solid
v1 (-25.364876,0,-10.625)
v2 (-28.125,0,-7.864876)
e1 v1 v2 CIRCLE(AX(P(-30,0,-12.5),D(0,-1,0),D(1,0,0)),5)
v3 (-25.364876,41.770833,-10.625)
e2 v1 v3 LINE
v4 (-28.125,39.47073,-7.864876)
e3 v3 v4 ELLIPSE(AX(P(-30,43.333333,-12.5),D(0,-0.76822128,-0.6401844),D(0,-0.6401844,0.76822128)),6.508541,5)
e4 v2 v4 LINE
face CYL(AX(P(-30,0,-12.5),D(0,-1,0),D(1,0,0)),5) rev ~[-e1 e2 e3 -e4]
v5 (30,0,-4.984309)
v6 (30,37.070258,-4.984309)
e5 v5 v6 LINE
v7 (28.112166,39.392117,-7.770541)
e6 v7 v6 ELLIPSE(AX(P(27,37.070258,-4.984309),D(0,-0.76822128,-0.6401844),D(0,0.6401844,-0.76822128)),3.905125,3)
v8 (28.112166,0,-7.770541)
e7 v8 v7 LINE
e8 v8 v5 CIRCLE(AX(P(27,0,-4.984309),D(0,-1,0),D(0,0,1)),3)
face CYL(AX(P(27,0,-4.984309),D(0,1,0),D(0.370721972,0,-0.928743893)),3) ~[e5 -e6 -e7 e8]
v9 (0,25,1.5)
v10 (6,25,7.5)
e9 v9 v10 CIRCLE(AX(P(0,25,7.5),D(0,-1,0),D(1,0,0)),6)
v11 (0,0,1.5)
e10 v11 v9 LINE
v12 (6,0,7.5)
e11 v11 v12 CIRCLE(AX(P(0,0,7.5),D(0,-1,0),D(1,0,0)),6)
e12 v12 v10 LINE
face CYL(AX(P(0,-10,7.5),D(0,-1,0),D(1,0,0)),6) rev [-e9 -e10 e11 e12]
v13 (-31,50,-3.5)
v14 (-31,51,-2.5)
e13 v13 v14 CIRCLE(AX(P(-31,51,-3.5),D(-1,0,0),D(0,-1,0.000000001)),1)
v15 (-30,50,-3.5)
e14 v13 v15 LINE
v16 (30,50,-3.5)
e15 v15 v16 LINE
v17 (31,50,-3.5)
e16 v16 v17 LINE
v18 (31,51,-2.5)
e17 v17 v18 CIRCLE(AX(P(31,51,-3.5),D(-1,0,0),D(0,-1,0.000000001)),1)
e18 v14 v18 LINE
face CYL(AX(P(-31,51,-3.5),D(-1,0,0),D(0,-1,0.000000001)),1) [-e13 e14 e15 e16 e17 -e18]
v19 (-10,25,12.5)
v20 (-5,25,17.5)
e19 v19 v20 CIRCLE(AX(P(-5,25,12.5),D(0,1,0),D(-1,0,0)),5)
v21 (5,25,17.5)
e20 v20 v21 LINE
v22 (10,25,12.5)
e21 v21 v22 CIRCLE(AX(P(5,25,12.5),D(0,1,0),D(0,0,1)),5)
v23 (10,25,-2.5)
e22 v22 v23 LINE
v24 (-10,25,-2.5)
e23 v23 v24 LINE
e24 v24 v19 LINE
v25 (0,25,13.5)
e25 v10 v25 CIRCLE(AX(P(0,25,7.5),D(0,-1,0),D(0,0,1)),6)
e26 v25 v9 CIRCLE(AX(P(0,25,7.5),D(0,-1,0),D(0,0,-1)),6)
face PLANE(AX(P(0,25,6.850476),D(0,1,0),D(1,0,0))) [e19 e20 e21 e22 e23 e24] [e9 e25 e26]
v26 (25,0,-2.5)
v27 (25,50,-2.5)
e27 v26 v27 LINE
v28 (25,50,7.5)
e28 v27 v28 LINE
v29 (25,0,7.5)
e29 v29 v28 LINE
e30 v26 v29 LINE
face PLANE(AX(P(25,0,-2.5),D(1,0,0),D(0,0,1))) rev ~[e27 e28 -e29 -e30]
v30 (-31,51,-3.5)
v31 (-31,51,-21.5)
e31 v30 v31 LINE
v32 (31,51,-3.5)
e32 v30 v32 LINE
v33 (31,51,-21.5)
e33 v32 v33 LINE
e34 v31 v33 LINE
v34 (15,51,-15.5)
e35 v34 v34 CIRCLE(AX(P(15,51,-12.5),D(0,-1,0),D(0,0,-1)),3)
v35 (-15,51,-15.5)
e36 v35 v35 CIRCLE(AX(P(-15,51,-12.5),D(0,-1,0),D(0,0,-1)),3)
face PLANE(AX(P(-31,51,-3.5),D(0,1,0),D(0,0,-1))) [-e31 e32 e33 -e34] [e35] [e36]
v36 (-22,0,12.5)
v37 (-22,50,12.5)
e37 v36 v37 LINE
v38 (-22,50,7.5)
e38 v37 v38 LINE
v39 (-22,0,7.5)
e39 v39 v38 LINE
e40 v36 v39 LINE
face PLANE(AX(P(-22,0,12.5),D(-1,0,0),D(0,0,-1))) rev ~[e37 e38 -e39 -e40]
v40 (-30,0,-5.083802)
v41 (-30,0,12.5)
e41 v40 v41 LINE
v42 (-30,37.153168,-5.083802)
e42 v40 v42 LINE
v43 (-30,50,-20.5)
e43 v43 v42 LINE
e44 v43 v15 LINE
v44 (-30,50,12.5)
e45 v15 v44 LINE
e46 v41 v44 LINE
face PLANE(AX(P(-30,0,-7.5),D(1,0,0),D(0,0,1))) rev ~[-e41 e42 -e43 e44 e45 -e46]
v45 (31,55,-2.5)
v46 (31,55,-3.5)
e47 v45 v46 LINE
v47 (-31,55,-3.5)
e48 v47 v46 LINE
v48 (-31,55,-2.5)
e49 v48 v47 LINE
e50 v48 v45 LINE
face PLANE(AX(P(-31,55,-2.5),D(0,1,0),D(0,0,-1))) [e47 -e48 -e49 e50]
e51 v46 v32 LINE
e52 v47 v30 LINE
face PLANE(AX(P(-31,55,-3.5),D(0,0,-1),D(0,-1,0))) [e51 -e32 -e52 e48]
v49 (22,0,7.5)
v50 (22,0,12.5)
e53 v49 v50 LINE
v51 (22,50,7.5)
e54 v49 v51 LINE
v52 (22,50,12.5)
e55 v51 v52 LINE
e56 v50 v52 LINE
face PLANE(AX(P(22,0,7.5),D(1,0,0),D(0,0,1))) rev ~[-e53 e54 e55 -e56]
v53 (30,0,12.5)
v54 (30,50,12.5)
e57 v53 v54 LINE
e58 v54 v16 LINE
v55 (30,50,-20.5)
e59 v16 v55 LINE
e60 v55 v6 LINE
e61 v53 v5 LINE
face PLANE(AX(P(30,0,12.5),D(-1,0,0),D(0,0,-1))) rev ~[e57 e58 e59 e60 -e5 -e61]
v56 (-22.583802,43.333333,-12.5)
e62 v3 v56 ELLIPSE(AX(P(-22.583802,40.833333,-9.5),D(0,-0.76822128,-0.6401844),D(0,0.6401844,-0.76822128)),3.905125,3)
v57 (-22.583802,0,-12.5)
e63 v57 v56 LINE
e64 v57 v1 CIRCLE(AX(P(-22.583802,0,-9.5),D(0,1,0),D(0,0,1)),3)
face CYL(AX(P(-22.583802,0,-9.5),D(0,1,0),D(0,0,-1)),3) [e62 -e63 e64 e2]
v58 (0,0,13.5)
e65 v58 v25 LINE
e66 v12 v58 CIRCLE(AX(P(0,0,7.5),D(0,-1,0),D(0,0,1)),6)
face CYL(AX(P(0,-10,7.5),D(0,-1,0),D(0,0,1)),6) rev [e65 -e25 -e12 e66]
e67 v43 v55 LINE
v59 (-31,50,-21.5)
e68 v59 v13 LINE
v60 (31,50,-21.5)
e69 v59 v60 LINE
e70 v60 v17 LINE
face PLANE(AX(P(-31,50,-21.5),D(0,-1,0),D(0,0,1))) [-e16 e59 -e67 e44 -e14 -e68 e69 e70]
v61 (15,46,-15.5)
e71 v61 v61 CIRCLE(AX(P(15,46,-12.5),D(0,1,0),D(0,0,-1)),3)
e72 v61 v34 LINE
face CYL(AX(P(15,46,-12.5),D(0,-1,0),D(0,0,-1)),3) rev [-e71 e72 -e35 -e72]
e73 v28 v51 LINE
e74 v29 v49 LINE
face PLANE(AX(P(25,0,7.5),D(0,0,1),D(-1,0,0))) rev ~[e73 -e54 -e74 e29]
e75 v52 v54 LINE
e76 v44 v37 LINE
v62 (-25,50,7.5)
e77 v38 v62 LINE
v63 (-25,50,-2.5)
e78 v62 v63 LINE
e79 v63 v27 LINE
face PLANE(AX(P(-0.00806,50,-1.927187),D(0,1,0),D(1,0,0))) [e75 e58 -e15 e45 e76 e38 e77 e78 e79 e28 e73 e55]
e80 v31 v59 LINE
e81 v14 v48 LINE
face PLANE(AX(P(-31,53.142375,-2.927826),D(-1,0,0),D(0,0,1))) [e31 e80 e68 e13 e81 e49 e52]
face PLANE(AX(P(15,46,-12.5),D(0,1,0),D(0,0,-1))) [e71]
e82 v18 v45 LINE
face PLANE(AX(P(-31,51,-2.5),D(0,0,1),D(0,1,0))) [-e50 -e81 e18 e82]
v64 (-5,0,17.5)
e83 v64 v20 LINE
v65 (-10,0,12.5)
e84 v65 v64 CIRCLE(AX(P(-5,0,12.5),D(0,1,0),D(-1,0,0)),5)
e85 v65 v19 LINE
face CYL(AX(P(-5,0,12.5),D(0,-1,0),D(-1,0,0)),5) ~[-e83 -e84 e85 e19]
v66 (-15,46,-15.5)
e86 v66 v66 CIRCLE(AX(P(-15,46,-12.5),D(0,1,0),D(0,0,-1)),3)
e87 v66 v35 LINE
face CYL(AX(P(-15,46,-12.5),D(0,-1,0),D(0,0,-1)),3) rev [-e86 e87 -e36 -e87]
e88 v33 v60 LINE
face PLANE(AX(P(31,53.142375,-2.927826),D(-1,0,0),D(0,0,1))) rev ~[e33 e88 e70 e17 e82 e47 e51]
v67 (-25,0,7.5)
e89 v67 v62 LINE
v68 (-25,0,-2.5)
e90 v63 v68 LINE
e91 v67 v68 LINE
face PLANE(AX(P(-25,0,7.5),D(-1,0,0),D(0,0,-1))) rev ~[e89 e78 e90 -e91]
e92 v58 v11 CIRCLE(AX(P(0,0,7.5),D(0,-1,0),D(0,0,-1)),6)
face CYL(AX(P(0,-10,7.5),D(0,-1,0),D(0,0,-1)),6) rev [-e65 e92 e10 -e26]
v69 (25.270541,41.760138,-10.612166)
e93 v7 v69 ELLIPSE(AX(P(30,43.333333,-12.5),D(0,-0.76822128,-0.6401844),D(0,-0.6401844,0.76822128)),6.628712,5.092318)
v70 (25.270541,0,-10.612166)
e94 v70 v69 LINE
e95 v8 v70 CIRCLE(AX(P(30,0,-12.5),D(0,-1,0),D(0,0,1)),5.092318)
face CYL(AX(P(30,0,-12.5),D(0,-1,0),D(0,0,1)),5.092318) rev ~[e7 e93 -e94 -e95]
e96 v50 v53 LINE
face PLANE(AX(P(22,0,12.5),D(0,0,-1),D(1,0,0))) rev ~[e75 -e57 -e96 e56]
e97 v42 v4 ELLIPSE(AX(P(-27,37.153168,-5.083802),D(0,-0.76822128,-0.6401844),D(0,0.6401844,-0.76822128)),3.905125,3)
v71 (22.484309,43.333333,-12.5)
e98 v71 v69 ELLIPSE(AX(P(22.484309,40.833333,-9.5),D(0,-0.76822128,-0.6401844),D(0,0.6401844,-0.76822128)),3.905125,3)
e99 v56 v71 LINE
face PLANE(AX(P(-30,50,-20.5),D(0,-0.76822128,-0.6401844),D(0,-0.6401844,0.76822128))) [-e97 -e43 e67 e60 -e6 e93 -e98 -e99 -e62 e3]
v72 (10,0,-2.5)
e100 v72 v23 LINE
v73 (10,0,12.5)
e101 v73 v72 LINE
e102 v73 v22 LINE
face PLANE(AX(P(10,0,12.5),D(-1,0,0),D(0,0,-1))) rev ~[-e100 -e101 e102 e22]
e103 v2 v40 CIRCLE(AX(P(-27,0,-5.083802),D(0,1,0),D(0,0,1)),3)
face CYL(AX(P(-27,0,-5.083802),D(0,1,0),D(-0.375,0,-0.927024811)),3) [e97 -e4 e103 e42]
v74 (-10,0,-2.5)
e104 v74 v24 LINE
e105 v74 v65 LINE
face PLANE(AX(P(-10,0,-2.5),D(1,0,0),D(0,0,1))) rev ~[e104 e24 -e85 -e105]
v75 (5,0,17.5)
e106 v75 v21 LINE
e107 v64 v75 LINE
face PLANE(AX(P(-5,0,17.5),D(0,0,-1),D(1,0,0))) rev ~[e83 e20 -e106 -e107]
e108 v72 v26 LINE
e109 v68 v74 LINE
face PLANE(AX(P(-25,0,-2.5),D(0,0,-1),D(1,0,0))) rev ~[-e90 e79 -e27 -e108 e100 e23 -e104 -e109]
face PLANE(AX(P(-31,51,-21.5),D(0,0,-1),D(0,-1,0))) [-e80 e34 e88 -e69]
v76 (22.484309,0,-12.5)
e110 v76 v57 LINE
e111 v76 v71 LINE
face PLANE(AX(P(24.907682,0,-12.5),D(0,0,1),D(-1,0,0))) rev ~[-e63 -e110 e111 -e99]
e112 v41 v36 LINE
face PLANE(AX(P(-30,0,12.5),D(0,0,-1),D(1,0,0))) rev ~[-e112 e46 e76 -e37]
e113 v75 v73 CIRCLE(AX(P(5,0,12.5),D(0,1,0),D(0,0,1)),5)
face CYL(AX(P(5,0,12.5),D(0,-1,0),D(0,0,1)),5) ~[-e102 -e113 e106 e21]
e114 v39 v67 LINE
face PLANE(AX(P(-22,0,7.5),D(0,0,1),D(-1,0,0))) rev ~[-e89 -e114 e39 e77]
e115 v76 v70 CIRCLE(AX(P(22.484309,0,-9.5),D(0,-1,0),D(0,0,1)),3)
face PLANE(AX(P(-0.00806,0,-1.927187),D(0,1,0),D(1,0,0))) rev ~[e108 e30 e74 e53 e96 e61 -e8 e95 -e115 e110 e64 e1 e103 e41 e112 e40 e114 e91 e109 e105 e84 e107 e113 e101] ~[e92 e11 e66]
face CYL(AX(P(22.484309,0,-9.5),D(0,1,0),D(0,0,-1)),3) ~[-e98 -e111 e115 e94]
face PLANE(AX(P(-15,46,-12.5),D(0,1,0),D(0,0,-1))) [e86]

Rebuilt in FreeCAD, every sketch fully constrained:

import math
import FreeCAD as App
import Part
import Sketcher
from FreeCAD import Vector


def edges_at(feature, points):
    """Names of the edges that pass closest to the given points."""
    edges = feature.Shape.Edges
    near = lambda p: min(range(len(edges)), key=lambda i: edges[i].distToShape(Part.Vertex(*p))[0])
    return sorted({f"Edge{near(p) + 1}" for p in points})

doc = App.newDocument("Part")
body = doc.addObject("PartDesign::Body", "Body")

# Sketch on XZ plane
sketch1 = body.newObject("Sketcher::SketchObject", "Sketch")
sketch1.AttachmentSupport = (doc.getObject("XZ_Plane"), [""])
sketch1.MapMode = "FlatFace"
sketch1.addGeometry([
    Part.LineSegment(Vector(25, 7.5, 0), Vector(22, 7.5, 0)),  # 0
    Part.LineSegment(Vector(22, 7.5, 0), Vector(22, 12.5, 0)),  # 1
    Part.LineSegment(Vector(22, 12.5, 0), Vector(30, 12.5, 0)),  # 2
    Part.LineSegment(Vector(30, 12.5, 0), Vector(30, -7.4, 0)),  # 3
    Part.ArcOfCircle(Part.Circle(Vector(30, -12.5, 0), Vector(0, 0, 1), 5.1), math.radians(90), math.radians(180)),  # 4
    Part.LineSegment(Vector(24.9, -12.5, 0), Vector(-25, -12.5, 0)),  # 5
    Part.ArcOfCircle(Part.Circle(Vector(-30, -12.5, 0), Vector(0, 0, 1), 5), math.radians(0), math.radians(90)),  # 6
    Part.LineSegment(Vector(-30, -7.5, 0), Vector(-30, 12.5, 0)),  # 7
    Part.LineSegment(Vector(-30, 12.5, 0), Vector(-22, 12.5, 0)),  # 8
    Part.LineSegment(Vector(-22, 12.5, 0), Vector(-22, 7.5, 0)),  # 9
    Part.LineSegment(Vector(-22, 7.5, 0), Vector(-25, 7.5, 0)),  # 10
    Part.LineSegment(Vector(-25, 7.5, 0), Vector(-25, -2.5, 0)),  # 11
    Part.LineSegment(Vector(-25, -2.5, 0), Vector(25, -2.5, 0)),  # 12
    Part.LineSegment(Vector(25, -2.5, 0), Vector(25, 7.5, 0)),  # 13
], False)
sketch1.addConstraint([
    Sketcher.Constraint("Coincident", 0, 2, 1, 1),
    Sketcher.Constraint("Coincident", 1, 2, 2, 1),
    Sketcher.Constraint("Coincident", 2, 2, 3, 1),
    Sketcher.Constraint("Coincident", 3, 2, 4, 1),
    Sketcher.Constraint("Coincident", 4, 2, 5, 1),
    Sketcher.Constraint("Coincident", 5, 2, 6, 1),
    Sketcher.Constraint("Coincident", 6, 2, 7, 1),
    Sketcher.Constraint("Coincident", 7, 2, 8, 1),
    Sketcher.Constraint("Coincident", 8, 2, 9, 1),
    Sketcher.Constraint("Coincident", 9, 2, 10, 1),
    Sketcher.Constraint("Coincident", 10, 2, 11, 1),
    Sketcher.Constraint("Coincident", 11, 2, 12, 1),
    Sketcher.Constraint("Coincident", 12, 2, 13, 1),
    Sketcher.Constraint("Coincident", 13, 2, 0, 1),
    Sketcher.Constraint("Horizontal", 0),
    Sketcher.Constraint("Vertical", 1),
    Sketcher.Constraint("Horizontal", 2),
    Sketcher.Constraint("Vertical", 3),
    Sketcher.Constraint("Horizontal", 5),
    Sketcher.Constraint("Vertical", 7),
    Sketcher.Constraint("Horizontal", 8),
    Sketcher.Constraint("Vertical", 9),
    Sketcher.Constraint("Horizontal", 10),
    Sketcher.Constraint("Vertical", 11),
    Sketcher.Constraint("Horizontal", 12),
    Sketcher.Constraint("Vertical", 13),
    Sketcher.Constraint("Symmetric", 4, 3, 6, 3, -2),
    Sketcher.Constraint("Symmetric", 2, 2, 7, 2, -2),
    Sketcher.Constraint("Symmetric", 0, 2, 9, 2, -2),
    Sketcher.Constraint("Horizontal", 6, 3, 4, 2),
    Sketcher.Constraint("Vertical", 4, 3, 2, 2),
    Sketcher.Constraint("Vertical", 5, 2, 10, 2),
    Sketcher.Constraint("Equal", 0, 10),
    Sketcher.Constraint("Radius", 6, 5.0),
    Sketcher.Constraint("DistanceX", 0, 2, 0, 1, 3.0),
    Sketcher.Constraint("DistanceX", 12, 1, 12, 2, 50.0),
    Sketcher.Constraint("DistanceY", 1, 1, 1, 2, 5.0),
    Sketcher.Constraint("DistanceY", 7, 1, 7, 2, 20.0),
    Sketcher.Constraint("DistanceY", 11, 2, 11, 1, 10.0),
    Sketcher.Constraint("DistanceY", 4, 3, -1, 1, 12.5),
    Sketcher.Constraint("Radius", 4, 5.092318),
])
pad1 = body.newObject("PartDesign::Pad", "Pad")
pad1.Profile = sketch1
pad1.Length = 50
pad1.Reversed = True
doc.recompute()

fillet = body.newObject("PartDesign::Fillet", "Fillet")
fillet.Base = (pad1, edges_at(pad1, [(-30, 25, -7.5), (-25, 25, -12.5)]))
fillet.Radius = 3
doc.recompute()

fillet2 = body.newObject("PartDesign::Fillet", "Fillet001")
fillet2.Base = (fillet, edges_at(fillet, [(24.908, 25, -12.5), (30, 25, -7.408)]))
fillet2.Radius = 3

# Sketch on YZ plane
sketch2 = body.newObject("Sketcher::SketchObject", "Sketch001")
sketch2.AttachmentSupport = (doc.getObject("YZ_Plane"), [""])
sketch2.MapMode = "FlatFace"
sketch2.AttachmentOffset = App.Placement(Vector(0, 0, -30), App.Rotation())
sketch2.addGeometry([
    Part.LineSegment(Vector(50, -2, 0), Vector(50, -20, 0)),
    Part.LineSegment(Vector(50, -20, 0), Vector(35, -2, 0)),
    Part.LineSegment(Vector(35, -2, 0), Vector(50, -2, 0)),
], False)
sketch2.addConstraint([
    Sketcher.Constraint("Coincident", 0, 2, 1, 1),
    Sketcher.Constraint("Coincident", 1, 2, 2, 1),
    Sketcher.Constraint("Coincident", 2, 2, 0, 1),
    Sketcher.Constraint("Vertical", 0),
    Sketcher.Constraint("Horizontal", 2),
    Sketcher.Constraint("DistanceX", 2, 1, 2, 2, 15.0),
    Sketcher.Constraint("DistanceY", 0, 2, 0, 1, 18.0),
    Sketcher.Constraint("DistanceX", -1, 1, 0, 2, 50.0),
    Sketcher.Constraint("DistanceY", 0, 2, -1, 1, 20.5),
])
pad2 = body.newObject("PartDesign::Pad", "Pad001")
pad2.Profile = sketch2
pad2.Length = 60

# Sketch on YZ plane
sketch3 = body.newObject("Sketcher::SketchObject", "Sketch002")
sketch3.AttachmentSupport = (doc.getObject("YZ_Plane"), [""])
sketch3.MapMode = "FlatFace"
sketch3.AttachmentOffset = App.Placement(Vector(0, 0, -31), App.Rotation())
sketch3.addGeometry([
    Part.LineSegment(Vector(51, -2.5, 0), Vector(55, -2.5, 0)),  # 0
    Part.LineSegment(Vector(55, -2.5, 0), Vector(55, -3.5, 0)),  # 1
    Part.LineSegment(Vector(55, -3.5, 0), Vector(51, -3.5, 0)),  # 2
    Part.LineSegment(Vector(51, -3.5, 0), Vector(51, -21.5, 0)),  # 3
    Part.LineSegment(Vector(51, -21.5, 0), Vector(50, -21.5, 0)),  # 4
    Part.LineSegment(Vector(50, -21.5, 0), Vector(50, -3.5, 0)),  # 5
    Part.ArcOfCircle(Part.Circle(Vector(51, -3.5, 0), Vector(0, 0, 1), 1), math.radians(90), math.radians(180)),  # 6
], False)
sketch3.addConstraint([
    Sketcher.Constraint("Coincident", 0, 2, 1, 1),
    Sketcher.Constraint("Coincident", 1, 2, 2, 1),
    Sketcher.Constraint("Coincident", 2, 2, 3, 1),
    Sketcher.Constraint("Coincident", 3, 2, 4, 1),
    Sketcher.Constraint("Coincident", 4, 2, 5, 1),
    Sketcher.Constraint("Tangent", 5, 2, 6, 2),
    Sketcher.Constraint("Tangent", 6, 1, 0, 1),
    Sketcher.Constraint("Horizontal", 0),
    Sketcher.Constraint("Vertical", 1),
    Sketcher.Constraint("Horizontal", 2),
    Sketcher.Constraint("Vertical", 3),
    Sketcher.Constraint("Horizontal", 4),
    Sketcher.Constraint("Vertical", 5),
    Sketcher.Constraint("Coincident", 2, 2, 6, 3),
    Sketcher.Constraint("Radius", 6, 1.0),
    Sketcher.Constraint("DistanceX", 0, 1, 0, 2, 4.0),
    Sketcher.Constraint("DistanceY", 3, 2, 3, 1, 18.0),
    Sketcher.Constraint("DistanceX", -1, 1, 6, 3, 51.0),
    Sketcher.Constraint("DistanceY", 6, 3, -1, 1, 3.5),
])
pad3 = body.newObject("PartDesign::Pad", "Pad002")
pad3.Profile = sketch3
pad3.Length = 62

# Sketch on XZ plane
sketch4 = body.newObject("Sketcher::SketchObject", "Sketch003")
sketch4.AttachmentSupport = (doc.getObject("XZ_Plane"), [""])
sketch4.MapMode = "FlatFace"
sketch4.AttachmentOffset = App.Placement(Vector(0, 0, -50), App.Rotation())
sketch4.addGeometry([
    Part.Circle(Vector(-15, -12.5, 0), Vector(0, 0, 1), 3),
    Part.Circle(Vector(15, -12.5, 0), Vector(0, 0, 1), 3),
], False)
sketch4.addConstraint([
    Sketcher.Constraint("Equal", 0, 1),
    Sketcher.Constraint("Symmetric", 0, 3, 1, 3, -2),
    Sketcher.Constraint("Diameter", 0, 6.0),
    Sketcher.Constraint("DistanceX", 0, 3, -1, 1, 15.0),
    Sketcher.Constraint("DistanceY", 0, 3, -1, 1, 12.5),
])
pocket1 = body.newObject("PartDesign::Pocket", "Pocket")
pocket1.Profile = sketch4
pocket1.Type = "TwoLengths"
pocket1.Length = 63.635852
pocket1.Length2 = 4

# Sketch on XZ plane
sketch5 = body.newObject("Sketcher::SketchObject", "Sketch004")
sketch5.AttachmentSupport = (doc.getObject("XZ_Plane"), [""])
sketch5.MapMode = "FlatFace"
sketch5.addGeometry([
    Part.LineSegment(Vector(-5, 18, 0), Vector(5, 18, 0)),  # 0
    Part.ArcOfCircle(Part.Circle(Vector(5, 12, 0), Vector(0, 0, 1), 5), math.radians(0), math.radians(90)),  # 1
    Part.LineSegment(Vector(10, 12, 0), Vector(10, -2, 0)),  # 2
    Part.LineSegment(Vector(10, -2, 0), Vector(-10, -2, 0)),  # 3
    Part.LineSegment(Vector(-10, -2, 0), Vector(-10, 12, 0)),  # 4
    Part.ArcOfCircle(Part.Circle(Vector(-5, 12, 0), Vector(0, 0, 1), 5), math.radians(90), math.radians(180)),  # 5
], False)
sketch5.addConstraint([
    Sketcher.Constraint("Tangent", 0, 2, 1, 2),
    Sketcher.Constraint("Tangent", 1, 1, 2, 1),
    Sketcher.Constraint("Coincident", 2, 2, 3, 1),
    Sketcher.Constraint("Coincident", 3, 2, 4, 1),
    Sketcher.Constraint("Tangent", 4, 2, 5, 2),
    Sketcher.Constraint("Tangent", 5, 1, 0, 1),
    Sketcher.Constraint("Horizontal", 0),
    Sketcher.Constraint("Vertical", 2),
    Sketcher.Constraint("Horizontal", 3),
    Sketcher.Constraint("Vertical", 4),
    Sketcher.Constraint("Equal", 1, 5),
    Sketcher.Constraint("Radius", 1, 5.0),
    Sketcher.Constraint("DistanceX", 0, 1, 0, 2, 10.0),
    Sketcher.Constraint("DistanceY", 2, 2, 2, 1, 15.0),
    Sketcher.Constraint("DistanceX", -1, 1, 1, 3, 5.0),
    Sketcher.Constraint("DistanceY", -1, 1, 1, 3, 12.5),
])
pad4 = body.newObject("PartDesign::Pad", "Pad003")
pad4.Profile = sketch5
pad4.Length = 25
pad4.Reversed = True

# Sketch on XZ plane
sketch6 = body.newObject("Sketcher::SketchObject", "Sketch005")
sketch6.AttachmentSupport = (doc.getObject("XZ_Plane"), [""])
sketch6.MapMode = "FlatFace"
sketch6.addGeometry([
    Part.ArcOfCircle(Part.Circle(Vector(0, 8, 0), Vector(0, 0, 1), 6), math.radians(90), math.radians(270)),
    Part.ArcOfCircle(Part.Circle(Vector(0, 8, 0), Vector(0, 0, 1), 6), math.radians(0), math.radians(90)),
    Part.ArcOfCircle(Part.Circle(Vector(0, 8, 0), Vector(0, 0, 1), 6), math.radians(-90), math.radians(0)),
], False)
sketch6.addConstraint([
    Sketcher.Constraint("Tangent", 0, 1, 1, 2),
    Sketcher.Constraint("Tangent", 1, 1, 2, 2),
    Sketcher.Constraint("Tangent", 2, 1, 0, 2),
    Sketcher.Constraint("PointOnObject", 0, 3, -2),
    Sketcher.Constraint("PointOnObject", 0, 1, -2),
    Sketcher.Constraint("PointOnObject", 2, 1, -2),
    Sketcher.Constraint("Horizontal", 2, 3, 1, 1),
    Sketcher.Constraint("Radius", 0, 6.0),
    Sketcher.Constraint("DistanceY", -1, 1, 0, 3, 7.5),
])
pocket2 = body.newObject("PartDesign::Pocket", "Pocket001")
pocket2.Profile = sketch6
pocket2.Type = "ThroughAll"
pocket2.Midplane = True

doc.recompute()
